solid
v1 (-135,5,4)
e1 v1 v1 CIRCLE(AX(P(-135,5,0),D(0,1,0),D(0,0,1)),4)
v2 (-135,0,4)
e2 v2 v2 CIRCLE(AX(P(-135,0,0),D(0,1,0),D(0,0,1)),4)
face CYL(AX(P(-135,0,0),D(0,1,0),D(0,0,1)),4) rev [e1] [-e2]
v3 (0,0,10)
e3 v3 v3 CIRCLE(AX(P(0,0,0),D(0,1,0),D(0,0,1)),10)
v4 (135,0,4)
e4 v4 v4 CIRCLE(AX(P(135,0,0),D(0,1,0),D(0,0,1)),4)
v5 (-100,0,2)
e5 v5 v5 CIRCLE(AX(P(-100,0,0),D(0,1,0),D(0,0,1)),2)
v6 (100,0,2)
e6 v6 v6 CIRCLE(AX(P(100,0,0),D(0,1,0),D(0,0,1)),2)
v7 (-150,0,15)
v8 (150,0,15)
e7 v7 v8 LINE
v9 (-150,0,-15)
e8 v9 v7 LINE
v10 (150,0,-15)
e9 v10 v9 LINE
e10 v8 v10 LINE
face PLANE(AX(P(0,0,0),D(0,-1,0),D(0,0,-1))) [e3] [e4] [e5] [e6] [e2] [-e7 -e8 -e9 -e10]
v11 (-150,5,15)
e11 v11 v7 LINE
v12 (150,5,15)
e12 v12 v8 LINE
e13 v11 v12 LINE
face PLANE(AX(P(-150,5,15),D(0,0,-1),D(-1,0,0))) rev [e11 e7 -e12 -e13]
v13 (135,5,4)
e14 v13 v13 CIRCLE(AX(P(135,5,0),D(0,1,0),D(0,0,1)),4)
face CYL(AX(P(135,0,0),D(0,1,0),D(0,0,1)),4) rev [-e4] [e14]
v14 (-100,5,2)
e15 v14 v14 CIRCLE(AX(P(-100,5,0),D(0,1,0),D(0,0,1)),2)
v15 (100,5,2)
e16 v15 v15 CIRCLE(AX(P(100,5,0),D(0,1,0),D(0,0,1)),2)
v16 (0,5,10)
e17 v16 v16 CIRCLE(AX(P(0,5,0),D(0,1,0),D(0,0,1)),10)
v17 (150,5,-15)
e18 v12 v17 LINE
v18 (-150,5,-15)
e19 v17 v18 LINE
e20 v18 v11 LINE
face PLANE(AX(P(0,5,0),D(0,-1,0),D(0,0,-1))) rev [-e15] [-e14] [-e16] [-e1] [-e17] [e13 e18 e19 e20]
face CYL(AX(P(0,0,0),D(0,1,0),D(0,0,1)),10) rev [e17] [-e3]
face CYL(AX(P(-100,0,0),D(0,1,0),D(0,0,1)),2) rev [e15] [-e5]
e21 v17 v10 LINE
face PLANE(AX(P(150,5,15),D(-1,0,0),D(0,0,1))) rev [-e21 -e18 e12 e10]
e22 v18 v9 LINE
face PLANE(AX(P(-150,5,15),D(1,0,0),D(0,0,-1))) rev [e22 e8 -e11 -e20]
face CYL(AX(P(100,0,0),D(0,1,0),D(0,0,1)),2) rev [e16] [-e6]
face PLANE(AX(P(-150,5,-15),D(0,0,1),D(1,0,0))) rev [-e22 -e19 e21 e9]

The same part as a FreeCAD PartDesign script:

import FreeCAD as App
import Part
import Sketcher

V = App.Vector
Q = App.Units.Quantity

doc = App.newDocument("Part")
body = doc.addObject("PartDesign::Body", "Body")

# Sketch on XZ plane
sketch1 = body.newObject("Sketcher::SketchObject", "Sketch")
sketch1.AttachmentSupport = (doc.getObject("XZ_Plane"), [""])
sketch1.MapMode = "FlatFace"
sketch1.addGeometry([
    Part.LineSegment(V(-150, -15, 0), V(-150, 15, 0)),
    Part.LineSegment(V(-150, 15, 0), V(150, 15, 0)),
    Part.LineSegment(V(150, 15, 0), V(150, -15, 0)),
    Part.LineSegment(V(150, -15, 0), V(-150, -15, 0)),
], False)
sketch1.addConstraint([
    Sketcher.Constraint("Coincident", 0, 2, 1, 1),
    Sketcher.Constraint("Coincident", 1, 2, 2, 1),
    Sketcher.Constraint("Coincident", 2, 2, 3, 1),
    Sketcher.Constraint("Coincident", 3, 2, 0, 1),
    Sketcher.Constraint("Vertical", 0),
    Sketcher.Constraint("Horizontal", 1),
    Sketcher.Constraint("Vertical", 2),
    Sketcher.Constraint("Horizontal", 3),
    Sketcher.Constraint("Symmetric", 0, 2, 2, 2, -1, 1),
    Sketcher.Constraint("DistanceX", 1, 1, 1, 2, Q("300 mm")),
    Sketcher.Constraint("DistanceY", 0, 1, 0, 2, Q("30 mm")),
])
pad1 = body.newObject("PartDesign::Pad", "Pad")
pad1.Profile = sketch1
pad1.Length = 5
pad1.Reversed = True

# Sketch on XZ plane
sketch2 = body.newObject("Sketcher::SketchObject", "Sketch001")
sketch2.AttachmentSupport = (doc.getObject("XZ_Plane"), [""])
sketch2.MapMode = "FlatFace"
sketch2.AttachmentOffset = App.Placement(V(0, 0, -5), App.Rotation())
sketch2.addGeometry([
    Part.Circle(V(-135, 0, 0), V(0, 0, 1), 4),
    Part.Circle(V(0, 0, 0), V(0, 0, 1), 10),
    Part.Circle(V(135, 0, 0), V(0, 0, 1), 4),
], False)
sketch2.addConstraint([
    Sketcher.Constraint("Coincident", 1, 3, -1, 1),
    Sketcher.Constraint("Equal", 0, 2),
    Sketcher.Constraint("Symmetric", 0, 3, 2, 3, -1, 1),
    Sketcher.Constraint("PointOnObject", 0, 3, -1),
    Sketcher.Constraint("Diameter", 0, Q("8 mm")),
    Sketcher.Constraint("Diameter", 1, Q("20 mm")),
    Sketcher.Constraint("DistanceX", 0, 3, -1, 1, Q("135 mm")),
])
pocket1 = body.newObject("PartDesign::Pocket", "Pocket")
pocket1.Profile = sketch2
pocket1.Length = 5
pocket1.Reversed = True

# Sketch on XZ plane
sketch3 = body.newObject("Sketcher::SketchObject", "Sketch002")
sketch3.AttachmentSupport = (doc.getObject("XZ_Plane"), [""])
sketch3.MapMode = "FlatFace"
sketch3.AttachmentOffset = App.Placement(V(0, 0, -5), App.Rotation())
sketch3.addGeometry([
    Part.Circle(V(100, 0, 0), V(0, 0, 1), 2),
    Part.Circle(V(-100, 0, 0), V(0, 0, 1), 2),
], False)
sketch3.addConstraint([
    Sketcher.Constraint("Equal", 0, 1),
    Sketcher.Constraint("Symmetric", 0, 3, 1, 3, -1, 1),
    Sketcher.Constraint("PointOnObject", 0, 3, -1),
    Sketcher.Constraint("Diameter", 0, Q("4 mm")),
    Sketcher.Constraint("DistanceX", -1, 1, 0, 3, Q("100 mm")),
])
pocket2 = body.newObject("PartDesign::Pocket", "Pocket001")
pocket2.Profile = sketch3
pocket2.Length = 5
pocket2.Reversed = True

doc.recompute()
